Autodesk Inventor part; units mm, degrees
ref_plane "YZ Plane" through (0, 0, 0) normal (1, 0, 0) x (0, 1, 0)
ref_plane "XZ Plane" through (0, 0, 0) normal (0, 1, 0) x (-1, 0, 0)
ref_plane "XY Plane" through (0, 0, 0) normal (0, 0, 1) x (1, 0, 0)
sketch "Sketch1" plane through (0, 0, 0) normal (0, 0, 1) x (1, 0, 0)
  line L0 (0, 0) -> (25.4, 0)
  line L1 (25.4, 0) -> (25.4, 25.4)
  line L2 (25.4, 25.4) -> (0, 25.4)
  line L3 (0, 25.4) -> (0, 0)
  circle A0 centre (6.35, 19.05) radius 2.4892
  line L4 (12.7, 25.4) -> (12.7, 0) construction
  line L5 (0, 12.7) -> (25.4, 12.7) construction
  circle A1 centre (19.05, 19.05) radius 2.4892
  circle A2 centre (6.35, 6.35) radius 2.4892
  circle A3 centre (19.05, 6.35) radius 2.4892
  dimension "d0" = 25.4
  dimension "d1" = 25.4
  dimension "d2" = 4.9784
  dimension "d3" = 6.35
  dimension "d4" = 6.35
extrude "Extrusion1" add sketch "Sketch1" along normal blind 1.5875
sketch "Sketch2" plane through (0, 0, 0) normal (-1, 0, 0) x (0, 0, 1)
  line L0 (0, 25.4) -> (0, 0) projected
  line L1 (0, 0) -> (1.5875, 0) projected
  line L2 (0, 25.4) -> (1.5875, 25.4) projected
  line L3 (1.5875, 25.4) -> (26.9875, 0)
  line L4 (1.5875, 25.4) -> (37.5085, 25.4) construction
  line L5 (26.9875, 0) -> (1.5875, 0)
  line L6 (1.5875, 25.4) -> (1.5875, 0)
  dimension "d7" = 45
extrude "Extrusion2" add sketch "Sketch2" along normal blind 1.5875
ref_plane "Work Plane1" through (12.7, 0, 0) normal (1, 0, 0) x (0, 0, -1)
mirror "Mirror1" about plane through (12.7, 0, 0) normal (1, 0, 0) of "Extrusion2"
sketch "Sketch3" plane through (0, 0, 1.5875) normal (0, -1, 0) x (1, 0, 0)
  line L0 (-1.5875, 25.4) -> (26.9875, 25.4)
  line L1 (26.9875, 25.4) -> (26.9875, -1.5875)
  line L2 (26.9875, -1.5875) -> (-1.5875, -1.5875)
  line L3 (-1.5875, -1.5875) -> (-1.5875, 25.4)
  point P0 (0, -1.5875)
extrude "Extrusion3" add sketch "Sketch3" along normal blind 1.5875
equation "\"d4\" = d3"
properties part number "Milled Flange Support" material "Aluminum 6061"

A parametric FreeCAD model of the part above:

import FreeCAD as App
import Part
import Sketcher
from FreeCAD import Vector
Q = App.Units.Quantity


def add_polygon(sketch, points):
    """Adds a closed chain of lines whose ends are joined by coincident constraints."""
    first, n = sketch.GeometryCount, len(points)
    for a, b in zip(points, points[1:] + points[:1]):
        sketch.addGeometry(Part.LineSegment(App.Vector(*a, 0), App.Vector(*b, 0)), False)
    for i in range(n):
        sketch.addConstraint(Sketcher.Constraint("Coincident", first + i, 2, first + (i + 1) % n, 1))

doc = App.newDocument("Part")
body = doc.addObject("PartDesign::Body", "Body")

sketch1 = doc.addObject("Sketcher::SketchObject", "Sketch")
body.addObject(sketch1)
sketch1.AttachmentSupport = (doc.XY_Plane, [""])
sketch1.MapMode = "FlatFace"
add_polygon(sketch1, [(0, 25.4), (0, 0), (25.4, 0), (25.4, 25.4)])
sketch1.addGeometry(Part.Circle(Vector(6.3, 6.3, 0), Vector(0, 0, 1), 2.5), False)
sketch1.addGeometry(Part.Circle(Vector(19.1, 6.3, 0), Vector(0, 0, 1), 2.5), False)
sketch1.addGeometry(Part.Circle(Vector(6.3, 19.1, 0), Vector(0, 0, 1), 2.5), False)
sketch1.addGeometry(Part.Circle(Vector(19.1, 19.1, 0), Vector(0, 0, 1), 2.5), False)
sketch1.addConstraint([
    Sketcher.Constraint("Vertical", 0),
    Sketcher.Constraint("Horizontal", 1),
    Sketcher.Constraint("Vertical", 2),
    Sketcher.Constraint("Horizontal", 3),
    Sketcher.Constraint("Coincident", 0, 2, -1, 1),
    Sketcher.Constraint("Equal", 4, 5),
    Sketcher.Constraint("Equal", 5, 6),
    Sketcher.Constraint("Equal", 6, 7),
    Sketcher.Constraint("Horizontal", 4, 3, 5, 3),
    Sketcher.Constraint("Horizontal", 6, 3, 7, 3),
    Sketcher.Constraint("Vertical", 4, 3, 6, 3),
    Sketcher.Constraint("Vertical", 5, 3, 7, 3),
    Sketcher.Constraint("Equal", 3, 0),
    Sketcher.Constraint("DistanceX", 1, 1, 1, 2, Q("1 in")),
    Sketcher.Constraint("Diameter", 4, Q("0.196 in")),
    Sketcher.Constraint("DistanceX", -1, 1, 4, 3, Q("0.25 in")),
    Sketcher.Constraint("DistanceY", -1, 1, 4, 3, Q("0.25 in")),
    Sketcher.Constraint("DistanceX", 5, 3, 1, 2, Q("0.25 in")),
    Sketcher.Constraint("DistanceY", 7, 3, 2, 2, Q("0.25 in")),
])
pad1 = doc.addObject("PartDesign::Pad", "Pad")
body.addObject(pad1)
pad1.Profile = sketch1
pad1.Length = Q("0.0625 in")

sketch2 = doc.addObject("Sketcher::SketchObject", "Sketch001")
body.addObject(sketch2)
sketch2.AttachmentSupport = (doc.YZ_Plane, [""])
sketch2.MapMode = "FlatFace"
add_polygon(sketch2, [(25.4, 1.6), (25.4, 0), (0, 0), (0, 27)])
sketch2.addConstraint([
    Sketcher.Constraint("Vertical", 0),
    Sketcher.Constraint("Horizontal", 1),
    Sketcher.Constraint("Vertical", 2),
    Sketcher.Constraint("Coincident", 1, 2, -1, 1),
    Sketcher.Constraint("Angle", 3, Q("-45 deg")),
    Sketcher.Constraint("DistanceX", 1, 2, 1, 1, Q("1 in")),
    Sketcher.Constraint("DistanceY", 0, 2, 0, 1, Q("0.0625 in")),
])
pad2 = doc.addObject("PartDesign::Pad", "Pad001")
body.addObject(pad2)
pad2.Profile = sketch2
pad2.Length = Q("0.0625 in")
pad2.Reversed = True
doc.recompute()

datumplane = doc.addObject("PartDesign::Plane", "DatumPlane")
body.addObject(datumplane)
datumplane.AttachmentSupport = (doc.YZ_Plane, [""])
datumplane.MapMode = "FlatFace"
datumplane.AttachmentOffset = App.Placement(Vector(0, 0, 0.5 * 25.4), App.Rotation())
mirrored = doc.addObject("PartDesign::Mirrored", "Mirrored")
body.addObject(mirrored)
mirrored.Originals = [pad2]
mirrored.MirrorPlane = (datumplane, [""])
body.Tip = mirrored

sketch3 = doc.addObject("Sketcher::SketchObject", "Sketch002")
body.addObject(sketch3)
sketch3.AttachmentSupport = (doc.XZ_Plane, [""])
sketch3.MapMode = "FlatFace"
add_polygon(sketch3, [(27, 27), (-2, 27), (-2, 0), (27, 0)])
sketch3.addConstraint([
    Sketcher.Constraint("Horizontal", 0),
    Sketcher.Constraint("Vertical", 1),
    Sketcher.Constraint("Horizontal", 2),
    Sketcher.Constraint("Vertical", 3),
    Sketcher.Constraint("PointOnObject", 1, 2, -1),
    Sketcher.Constraint("DistanceX", 0, 2, 0, 1, Q("1.125 in")),
    Sketcher.Constraint("DistanceY", 1, 2, 1, 1, Q("1.0625 in")),
    Sketcher.Constraint("DistanceX", 0, 2, -1, 1, Q("0.0625 in")),
])
pad3 = doc.addObject("PartDesign::Pad", "Pad002")
body.addObject(pad3)
pad3.Profile = sketch3
pad3.Length = Q("0.0625 in")

doc.recompute()
